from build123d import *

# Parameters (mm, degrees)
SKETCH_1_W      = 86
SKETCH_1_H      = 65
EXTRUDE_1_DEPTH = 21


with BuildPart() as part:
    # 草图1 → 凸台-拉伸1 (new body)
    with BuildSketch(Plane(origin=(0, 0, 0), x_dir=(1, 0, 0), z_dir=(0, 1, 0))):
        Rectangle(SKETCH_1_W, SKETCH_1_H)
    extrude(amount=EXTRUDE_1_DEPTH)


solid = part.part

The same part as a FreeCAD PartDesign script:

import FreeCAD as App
import Part
import Sketcher

V = App.Vector

doc = App.newDocument("Part")
body = doc.addObject("PartDesign::Body", "Body")

sketch1 = doc.addObject("Sketcher::SketchObject", "Sketch")
body.addObject(sketch1)
sketch1.AttachmentSupport = (doc.XZ_Plane, [""])
sketch1.MapMode = "FlatFace"
sketch1.addGeometry(Part.LineSegment(V(-43, -32.5, 0), V(-43, 32.5, 0)), False)
sketch1.addGeometry(Part.LineSegment(V(-43, 32.5, 0), V(43, 32.5, 0)), False)
sketch1.addGeometry(Part.LineSegment(V(43, 32.5, 0), V(43, -32.5, 0)), False)
sketch1.addGeometry(Part.LineSegment(V(43, -32.5, 0), V(-43, -32.5, 0)), False)
sketch1.addConstraint(Sketcher.Constraint("Coincident", 0, 2, 1, 1))
sketch1.addConstraint(Sketcher.Constraint("Coincident", 1, 2, 2, 1))
sketch1.addConstraint(Sketcher.Constraint("Coincident", 2, 2, 3, 1))
sketch1.addConstraint(Sketcher.Constraint("Coincident", 3, 2, 0, 1))
sketch1.addConstraint(Sketcher.Constraint("Vertical", 0))
sketch1.addConstraint(Sketcher.Constraint("Horizontal", 1))
sketch1.addConstraint(Sketcher.Constraint("Vertical", 2))
sketch1.addConstraint(Sketcher.Constraint("Horizontal", 3))
sketch1.addConstraint(Sketcher.Constraint("Symmetric", 0, 2, 2, 2, -1, 1))
sketch1.addConstraint(Sketcher.Constraint("DistanceX", 1, 1, 1, 2, 86.0))
sketch1.addConstraint(Sketcher.Constraint("DistanceY", 0, 1, 0, 2, 65.0))
pad1 = doc.addObject("PartDesign::Pad", "Pad")
body.addObject(pad1)
pad1.Profile = sketch1
pad1.Length = 21
pad1.Reversed = True

doc.recompute()
